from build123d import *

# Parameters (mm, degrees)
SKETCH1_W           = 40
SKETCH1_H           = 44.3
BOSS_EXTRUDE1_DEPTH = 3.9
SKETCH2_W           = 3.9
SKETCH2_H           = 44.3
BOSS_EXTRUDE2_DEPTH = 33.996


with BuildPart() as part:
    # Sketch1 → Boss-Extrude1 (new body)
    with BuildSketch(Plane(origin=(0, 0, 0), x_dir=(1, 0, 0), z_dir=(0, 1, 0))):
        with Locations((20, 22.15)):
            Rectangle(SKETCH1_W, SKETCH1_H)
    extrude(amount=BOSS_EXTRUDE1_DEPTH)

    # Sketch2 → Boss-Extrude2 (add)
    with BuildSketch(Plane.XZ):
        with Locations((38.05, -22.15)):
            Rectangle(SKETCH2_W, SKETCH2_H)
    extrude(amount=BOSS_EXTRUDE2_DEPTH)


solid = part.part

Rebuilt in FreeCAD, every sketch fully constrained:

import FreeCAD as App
import Part
import Sketcher

V = App.Vector
Q = App.Units.Quantity


def add_polygon(sketch, points):
    """Adds a closed chain of lines whose ends are joined by coincident constraints."""
    first, n = sketch.GeometryCount, len(points)
    for a, b in zip(points, points[1:] + points[:1]):
        sketch.addGeometry(Part.LineSegment(App.Vector(*a, 0), App.Vector(*b, 0)), False)
    for i in range(n):
        sketch.addConstraint(Sketcher.Constraint("Coincident", first + i, 2, first + (i + 1) % n, 1))

doc = App.newDocument("Part")
params = doc.addObject("Spreadsheet::Sheet", "Params")
for row, (alias, value) in enumerate([
    ("sketch1_width", "40 mm"),
    ("sketch1_height", "44.3 mm"),
    ("pad1_length", "3.9 mm"),
    ("sketch2_width", "3.9 mm"),
    ("sketch2_height", "44.3 mm"),
    ("pad2_length", "33.996 mm"),
], start=1):
    params.set(f"A{row}", alias)
    params.set(f"B{row}", "=" + value)
    params.setAlias(f"B{row}", alias)

body = doc.addObject("PartDesign::Body", "Body")

# Sketch on XZ plane
sketch1 = doc.addObject("Sketcher::SketchObject", "Sketch")
body.addObject(sketch1)
sketch1.AttachmentSupport = (doc.XZ_Plane, [""])
sketch1.MapMode = "FlatFace"
add_polygon(sketch1, [(0, -44), (0, 0), (40, 0), (40, -44)])  # lines 0-3
sketch1.addConstraint([
    Sketcher.Constraint("Vertical", 0),
    Sketcher.Constraint("Horizontal", 1),
    Sketcher.Constraint("Vertical", 2),
    Sketcher.Constraint("Horizontal", 3),
    Sketcher.Constraint("Coincident", 0, 2, -1, 1),
    Sketcher.Constraint("DistanceX", 1, 1, 1, 2, Q("40 mm")),
    Sketcher.Constraint("DistanceY", 0, 1, 0, 2, Q("44.3 mm")),
])
sketch1.setExpression("Constraints[9]", "Params.sketch1_width")
sketch1.setExpression("Constraints[10]", "Params.sketch1_height")
pad1 = doc.addObject("PartDesign::Pad", "Pad")
body.addObject(pad1)
pad1.Profile = sketch1
pad1.setExpression("Length", "Params.pad1_length")
pad1.Reversed = True

# Sketch on XZ plane
sketch2 = doc.addObject("Sketcher::SketchObject", "Sketch001")
body.addObject(sketch2)
sketch2.AttachmentSupport = (doc.XZ_Plane, [""])
sketch2.MapMode = "FlatFace"
add_polygon(sketch2, [(36.1, 0), (36.1, -44.3), (40, -44.3), (40, 0)])  # lines 0-3
sketch2.addConstraint([
    Sketcher.Constraint("Vertical", 0),
    Sketcher.Constraint("Horizontal", 1),
    Sketcher.Constraint("Vertical", 2),
    Sketcher.Constraint("Horizontal", 3),
    Sketcher.Constraint("PointOnObject", 2, 2, -1),
    Sketcher.Constraint("DistanceX", 1, 1, 1, 2, Q("3.9 mm")),
    Sketcher.Constraint("DistanceY", 0, 2, 0, 1, Q("44.3 mm")),
    Sketcher.Constraint("DistanceX", -1, 1, 1, 2, Q("40 mm")),
])
sketch2.setExpression("Constraints[9]", "Params.sketch2_width")
sketch2.setExpression("Constraints[10]", "Params.sketch2_height")
pad2 = doc.addObject("PartDesign::Pad", "Pad001")
body.addObject(pad2)
pad2.Profile = sketch2
pad2.setExpression("Length", "Params.pad2_length")

doc.recompute()
